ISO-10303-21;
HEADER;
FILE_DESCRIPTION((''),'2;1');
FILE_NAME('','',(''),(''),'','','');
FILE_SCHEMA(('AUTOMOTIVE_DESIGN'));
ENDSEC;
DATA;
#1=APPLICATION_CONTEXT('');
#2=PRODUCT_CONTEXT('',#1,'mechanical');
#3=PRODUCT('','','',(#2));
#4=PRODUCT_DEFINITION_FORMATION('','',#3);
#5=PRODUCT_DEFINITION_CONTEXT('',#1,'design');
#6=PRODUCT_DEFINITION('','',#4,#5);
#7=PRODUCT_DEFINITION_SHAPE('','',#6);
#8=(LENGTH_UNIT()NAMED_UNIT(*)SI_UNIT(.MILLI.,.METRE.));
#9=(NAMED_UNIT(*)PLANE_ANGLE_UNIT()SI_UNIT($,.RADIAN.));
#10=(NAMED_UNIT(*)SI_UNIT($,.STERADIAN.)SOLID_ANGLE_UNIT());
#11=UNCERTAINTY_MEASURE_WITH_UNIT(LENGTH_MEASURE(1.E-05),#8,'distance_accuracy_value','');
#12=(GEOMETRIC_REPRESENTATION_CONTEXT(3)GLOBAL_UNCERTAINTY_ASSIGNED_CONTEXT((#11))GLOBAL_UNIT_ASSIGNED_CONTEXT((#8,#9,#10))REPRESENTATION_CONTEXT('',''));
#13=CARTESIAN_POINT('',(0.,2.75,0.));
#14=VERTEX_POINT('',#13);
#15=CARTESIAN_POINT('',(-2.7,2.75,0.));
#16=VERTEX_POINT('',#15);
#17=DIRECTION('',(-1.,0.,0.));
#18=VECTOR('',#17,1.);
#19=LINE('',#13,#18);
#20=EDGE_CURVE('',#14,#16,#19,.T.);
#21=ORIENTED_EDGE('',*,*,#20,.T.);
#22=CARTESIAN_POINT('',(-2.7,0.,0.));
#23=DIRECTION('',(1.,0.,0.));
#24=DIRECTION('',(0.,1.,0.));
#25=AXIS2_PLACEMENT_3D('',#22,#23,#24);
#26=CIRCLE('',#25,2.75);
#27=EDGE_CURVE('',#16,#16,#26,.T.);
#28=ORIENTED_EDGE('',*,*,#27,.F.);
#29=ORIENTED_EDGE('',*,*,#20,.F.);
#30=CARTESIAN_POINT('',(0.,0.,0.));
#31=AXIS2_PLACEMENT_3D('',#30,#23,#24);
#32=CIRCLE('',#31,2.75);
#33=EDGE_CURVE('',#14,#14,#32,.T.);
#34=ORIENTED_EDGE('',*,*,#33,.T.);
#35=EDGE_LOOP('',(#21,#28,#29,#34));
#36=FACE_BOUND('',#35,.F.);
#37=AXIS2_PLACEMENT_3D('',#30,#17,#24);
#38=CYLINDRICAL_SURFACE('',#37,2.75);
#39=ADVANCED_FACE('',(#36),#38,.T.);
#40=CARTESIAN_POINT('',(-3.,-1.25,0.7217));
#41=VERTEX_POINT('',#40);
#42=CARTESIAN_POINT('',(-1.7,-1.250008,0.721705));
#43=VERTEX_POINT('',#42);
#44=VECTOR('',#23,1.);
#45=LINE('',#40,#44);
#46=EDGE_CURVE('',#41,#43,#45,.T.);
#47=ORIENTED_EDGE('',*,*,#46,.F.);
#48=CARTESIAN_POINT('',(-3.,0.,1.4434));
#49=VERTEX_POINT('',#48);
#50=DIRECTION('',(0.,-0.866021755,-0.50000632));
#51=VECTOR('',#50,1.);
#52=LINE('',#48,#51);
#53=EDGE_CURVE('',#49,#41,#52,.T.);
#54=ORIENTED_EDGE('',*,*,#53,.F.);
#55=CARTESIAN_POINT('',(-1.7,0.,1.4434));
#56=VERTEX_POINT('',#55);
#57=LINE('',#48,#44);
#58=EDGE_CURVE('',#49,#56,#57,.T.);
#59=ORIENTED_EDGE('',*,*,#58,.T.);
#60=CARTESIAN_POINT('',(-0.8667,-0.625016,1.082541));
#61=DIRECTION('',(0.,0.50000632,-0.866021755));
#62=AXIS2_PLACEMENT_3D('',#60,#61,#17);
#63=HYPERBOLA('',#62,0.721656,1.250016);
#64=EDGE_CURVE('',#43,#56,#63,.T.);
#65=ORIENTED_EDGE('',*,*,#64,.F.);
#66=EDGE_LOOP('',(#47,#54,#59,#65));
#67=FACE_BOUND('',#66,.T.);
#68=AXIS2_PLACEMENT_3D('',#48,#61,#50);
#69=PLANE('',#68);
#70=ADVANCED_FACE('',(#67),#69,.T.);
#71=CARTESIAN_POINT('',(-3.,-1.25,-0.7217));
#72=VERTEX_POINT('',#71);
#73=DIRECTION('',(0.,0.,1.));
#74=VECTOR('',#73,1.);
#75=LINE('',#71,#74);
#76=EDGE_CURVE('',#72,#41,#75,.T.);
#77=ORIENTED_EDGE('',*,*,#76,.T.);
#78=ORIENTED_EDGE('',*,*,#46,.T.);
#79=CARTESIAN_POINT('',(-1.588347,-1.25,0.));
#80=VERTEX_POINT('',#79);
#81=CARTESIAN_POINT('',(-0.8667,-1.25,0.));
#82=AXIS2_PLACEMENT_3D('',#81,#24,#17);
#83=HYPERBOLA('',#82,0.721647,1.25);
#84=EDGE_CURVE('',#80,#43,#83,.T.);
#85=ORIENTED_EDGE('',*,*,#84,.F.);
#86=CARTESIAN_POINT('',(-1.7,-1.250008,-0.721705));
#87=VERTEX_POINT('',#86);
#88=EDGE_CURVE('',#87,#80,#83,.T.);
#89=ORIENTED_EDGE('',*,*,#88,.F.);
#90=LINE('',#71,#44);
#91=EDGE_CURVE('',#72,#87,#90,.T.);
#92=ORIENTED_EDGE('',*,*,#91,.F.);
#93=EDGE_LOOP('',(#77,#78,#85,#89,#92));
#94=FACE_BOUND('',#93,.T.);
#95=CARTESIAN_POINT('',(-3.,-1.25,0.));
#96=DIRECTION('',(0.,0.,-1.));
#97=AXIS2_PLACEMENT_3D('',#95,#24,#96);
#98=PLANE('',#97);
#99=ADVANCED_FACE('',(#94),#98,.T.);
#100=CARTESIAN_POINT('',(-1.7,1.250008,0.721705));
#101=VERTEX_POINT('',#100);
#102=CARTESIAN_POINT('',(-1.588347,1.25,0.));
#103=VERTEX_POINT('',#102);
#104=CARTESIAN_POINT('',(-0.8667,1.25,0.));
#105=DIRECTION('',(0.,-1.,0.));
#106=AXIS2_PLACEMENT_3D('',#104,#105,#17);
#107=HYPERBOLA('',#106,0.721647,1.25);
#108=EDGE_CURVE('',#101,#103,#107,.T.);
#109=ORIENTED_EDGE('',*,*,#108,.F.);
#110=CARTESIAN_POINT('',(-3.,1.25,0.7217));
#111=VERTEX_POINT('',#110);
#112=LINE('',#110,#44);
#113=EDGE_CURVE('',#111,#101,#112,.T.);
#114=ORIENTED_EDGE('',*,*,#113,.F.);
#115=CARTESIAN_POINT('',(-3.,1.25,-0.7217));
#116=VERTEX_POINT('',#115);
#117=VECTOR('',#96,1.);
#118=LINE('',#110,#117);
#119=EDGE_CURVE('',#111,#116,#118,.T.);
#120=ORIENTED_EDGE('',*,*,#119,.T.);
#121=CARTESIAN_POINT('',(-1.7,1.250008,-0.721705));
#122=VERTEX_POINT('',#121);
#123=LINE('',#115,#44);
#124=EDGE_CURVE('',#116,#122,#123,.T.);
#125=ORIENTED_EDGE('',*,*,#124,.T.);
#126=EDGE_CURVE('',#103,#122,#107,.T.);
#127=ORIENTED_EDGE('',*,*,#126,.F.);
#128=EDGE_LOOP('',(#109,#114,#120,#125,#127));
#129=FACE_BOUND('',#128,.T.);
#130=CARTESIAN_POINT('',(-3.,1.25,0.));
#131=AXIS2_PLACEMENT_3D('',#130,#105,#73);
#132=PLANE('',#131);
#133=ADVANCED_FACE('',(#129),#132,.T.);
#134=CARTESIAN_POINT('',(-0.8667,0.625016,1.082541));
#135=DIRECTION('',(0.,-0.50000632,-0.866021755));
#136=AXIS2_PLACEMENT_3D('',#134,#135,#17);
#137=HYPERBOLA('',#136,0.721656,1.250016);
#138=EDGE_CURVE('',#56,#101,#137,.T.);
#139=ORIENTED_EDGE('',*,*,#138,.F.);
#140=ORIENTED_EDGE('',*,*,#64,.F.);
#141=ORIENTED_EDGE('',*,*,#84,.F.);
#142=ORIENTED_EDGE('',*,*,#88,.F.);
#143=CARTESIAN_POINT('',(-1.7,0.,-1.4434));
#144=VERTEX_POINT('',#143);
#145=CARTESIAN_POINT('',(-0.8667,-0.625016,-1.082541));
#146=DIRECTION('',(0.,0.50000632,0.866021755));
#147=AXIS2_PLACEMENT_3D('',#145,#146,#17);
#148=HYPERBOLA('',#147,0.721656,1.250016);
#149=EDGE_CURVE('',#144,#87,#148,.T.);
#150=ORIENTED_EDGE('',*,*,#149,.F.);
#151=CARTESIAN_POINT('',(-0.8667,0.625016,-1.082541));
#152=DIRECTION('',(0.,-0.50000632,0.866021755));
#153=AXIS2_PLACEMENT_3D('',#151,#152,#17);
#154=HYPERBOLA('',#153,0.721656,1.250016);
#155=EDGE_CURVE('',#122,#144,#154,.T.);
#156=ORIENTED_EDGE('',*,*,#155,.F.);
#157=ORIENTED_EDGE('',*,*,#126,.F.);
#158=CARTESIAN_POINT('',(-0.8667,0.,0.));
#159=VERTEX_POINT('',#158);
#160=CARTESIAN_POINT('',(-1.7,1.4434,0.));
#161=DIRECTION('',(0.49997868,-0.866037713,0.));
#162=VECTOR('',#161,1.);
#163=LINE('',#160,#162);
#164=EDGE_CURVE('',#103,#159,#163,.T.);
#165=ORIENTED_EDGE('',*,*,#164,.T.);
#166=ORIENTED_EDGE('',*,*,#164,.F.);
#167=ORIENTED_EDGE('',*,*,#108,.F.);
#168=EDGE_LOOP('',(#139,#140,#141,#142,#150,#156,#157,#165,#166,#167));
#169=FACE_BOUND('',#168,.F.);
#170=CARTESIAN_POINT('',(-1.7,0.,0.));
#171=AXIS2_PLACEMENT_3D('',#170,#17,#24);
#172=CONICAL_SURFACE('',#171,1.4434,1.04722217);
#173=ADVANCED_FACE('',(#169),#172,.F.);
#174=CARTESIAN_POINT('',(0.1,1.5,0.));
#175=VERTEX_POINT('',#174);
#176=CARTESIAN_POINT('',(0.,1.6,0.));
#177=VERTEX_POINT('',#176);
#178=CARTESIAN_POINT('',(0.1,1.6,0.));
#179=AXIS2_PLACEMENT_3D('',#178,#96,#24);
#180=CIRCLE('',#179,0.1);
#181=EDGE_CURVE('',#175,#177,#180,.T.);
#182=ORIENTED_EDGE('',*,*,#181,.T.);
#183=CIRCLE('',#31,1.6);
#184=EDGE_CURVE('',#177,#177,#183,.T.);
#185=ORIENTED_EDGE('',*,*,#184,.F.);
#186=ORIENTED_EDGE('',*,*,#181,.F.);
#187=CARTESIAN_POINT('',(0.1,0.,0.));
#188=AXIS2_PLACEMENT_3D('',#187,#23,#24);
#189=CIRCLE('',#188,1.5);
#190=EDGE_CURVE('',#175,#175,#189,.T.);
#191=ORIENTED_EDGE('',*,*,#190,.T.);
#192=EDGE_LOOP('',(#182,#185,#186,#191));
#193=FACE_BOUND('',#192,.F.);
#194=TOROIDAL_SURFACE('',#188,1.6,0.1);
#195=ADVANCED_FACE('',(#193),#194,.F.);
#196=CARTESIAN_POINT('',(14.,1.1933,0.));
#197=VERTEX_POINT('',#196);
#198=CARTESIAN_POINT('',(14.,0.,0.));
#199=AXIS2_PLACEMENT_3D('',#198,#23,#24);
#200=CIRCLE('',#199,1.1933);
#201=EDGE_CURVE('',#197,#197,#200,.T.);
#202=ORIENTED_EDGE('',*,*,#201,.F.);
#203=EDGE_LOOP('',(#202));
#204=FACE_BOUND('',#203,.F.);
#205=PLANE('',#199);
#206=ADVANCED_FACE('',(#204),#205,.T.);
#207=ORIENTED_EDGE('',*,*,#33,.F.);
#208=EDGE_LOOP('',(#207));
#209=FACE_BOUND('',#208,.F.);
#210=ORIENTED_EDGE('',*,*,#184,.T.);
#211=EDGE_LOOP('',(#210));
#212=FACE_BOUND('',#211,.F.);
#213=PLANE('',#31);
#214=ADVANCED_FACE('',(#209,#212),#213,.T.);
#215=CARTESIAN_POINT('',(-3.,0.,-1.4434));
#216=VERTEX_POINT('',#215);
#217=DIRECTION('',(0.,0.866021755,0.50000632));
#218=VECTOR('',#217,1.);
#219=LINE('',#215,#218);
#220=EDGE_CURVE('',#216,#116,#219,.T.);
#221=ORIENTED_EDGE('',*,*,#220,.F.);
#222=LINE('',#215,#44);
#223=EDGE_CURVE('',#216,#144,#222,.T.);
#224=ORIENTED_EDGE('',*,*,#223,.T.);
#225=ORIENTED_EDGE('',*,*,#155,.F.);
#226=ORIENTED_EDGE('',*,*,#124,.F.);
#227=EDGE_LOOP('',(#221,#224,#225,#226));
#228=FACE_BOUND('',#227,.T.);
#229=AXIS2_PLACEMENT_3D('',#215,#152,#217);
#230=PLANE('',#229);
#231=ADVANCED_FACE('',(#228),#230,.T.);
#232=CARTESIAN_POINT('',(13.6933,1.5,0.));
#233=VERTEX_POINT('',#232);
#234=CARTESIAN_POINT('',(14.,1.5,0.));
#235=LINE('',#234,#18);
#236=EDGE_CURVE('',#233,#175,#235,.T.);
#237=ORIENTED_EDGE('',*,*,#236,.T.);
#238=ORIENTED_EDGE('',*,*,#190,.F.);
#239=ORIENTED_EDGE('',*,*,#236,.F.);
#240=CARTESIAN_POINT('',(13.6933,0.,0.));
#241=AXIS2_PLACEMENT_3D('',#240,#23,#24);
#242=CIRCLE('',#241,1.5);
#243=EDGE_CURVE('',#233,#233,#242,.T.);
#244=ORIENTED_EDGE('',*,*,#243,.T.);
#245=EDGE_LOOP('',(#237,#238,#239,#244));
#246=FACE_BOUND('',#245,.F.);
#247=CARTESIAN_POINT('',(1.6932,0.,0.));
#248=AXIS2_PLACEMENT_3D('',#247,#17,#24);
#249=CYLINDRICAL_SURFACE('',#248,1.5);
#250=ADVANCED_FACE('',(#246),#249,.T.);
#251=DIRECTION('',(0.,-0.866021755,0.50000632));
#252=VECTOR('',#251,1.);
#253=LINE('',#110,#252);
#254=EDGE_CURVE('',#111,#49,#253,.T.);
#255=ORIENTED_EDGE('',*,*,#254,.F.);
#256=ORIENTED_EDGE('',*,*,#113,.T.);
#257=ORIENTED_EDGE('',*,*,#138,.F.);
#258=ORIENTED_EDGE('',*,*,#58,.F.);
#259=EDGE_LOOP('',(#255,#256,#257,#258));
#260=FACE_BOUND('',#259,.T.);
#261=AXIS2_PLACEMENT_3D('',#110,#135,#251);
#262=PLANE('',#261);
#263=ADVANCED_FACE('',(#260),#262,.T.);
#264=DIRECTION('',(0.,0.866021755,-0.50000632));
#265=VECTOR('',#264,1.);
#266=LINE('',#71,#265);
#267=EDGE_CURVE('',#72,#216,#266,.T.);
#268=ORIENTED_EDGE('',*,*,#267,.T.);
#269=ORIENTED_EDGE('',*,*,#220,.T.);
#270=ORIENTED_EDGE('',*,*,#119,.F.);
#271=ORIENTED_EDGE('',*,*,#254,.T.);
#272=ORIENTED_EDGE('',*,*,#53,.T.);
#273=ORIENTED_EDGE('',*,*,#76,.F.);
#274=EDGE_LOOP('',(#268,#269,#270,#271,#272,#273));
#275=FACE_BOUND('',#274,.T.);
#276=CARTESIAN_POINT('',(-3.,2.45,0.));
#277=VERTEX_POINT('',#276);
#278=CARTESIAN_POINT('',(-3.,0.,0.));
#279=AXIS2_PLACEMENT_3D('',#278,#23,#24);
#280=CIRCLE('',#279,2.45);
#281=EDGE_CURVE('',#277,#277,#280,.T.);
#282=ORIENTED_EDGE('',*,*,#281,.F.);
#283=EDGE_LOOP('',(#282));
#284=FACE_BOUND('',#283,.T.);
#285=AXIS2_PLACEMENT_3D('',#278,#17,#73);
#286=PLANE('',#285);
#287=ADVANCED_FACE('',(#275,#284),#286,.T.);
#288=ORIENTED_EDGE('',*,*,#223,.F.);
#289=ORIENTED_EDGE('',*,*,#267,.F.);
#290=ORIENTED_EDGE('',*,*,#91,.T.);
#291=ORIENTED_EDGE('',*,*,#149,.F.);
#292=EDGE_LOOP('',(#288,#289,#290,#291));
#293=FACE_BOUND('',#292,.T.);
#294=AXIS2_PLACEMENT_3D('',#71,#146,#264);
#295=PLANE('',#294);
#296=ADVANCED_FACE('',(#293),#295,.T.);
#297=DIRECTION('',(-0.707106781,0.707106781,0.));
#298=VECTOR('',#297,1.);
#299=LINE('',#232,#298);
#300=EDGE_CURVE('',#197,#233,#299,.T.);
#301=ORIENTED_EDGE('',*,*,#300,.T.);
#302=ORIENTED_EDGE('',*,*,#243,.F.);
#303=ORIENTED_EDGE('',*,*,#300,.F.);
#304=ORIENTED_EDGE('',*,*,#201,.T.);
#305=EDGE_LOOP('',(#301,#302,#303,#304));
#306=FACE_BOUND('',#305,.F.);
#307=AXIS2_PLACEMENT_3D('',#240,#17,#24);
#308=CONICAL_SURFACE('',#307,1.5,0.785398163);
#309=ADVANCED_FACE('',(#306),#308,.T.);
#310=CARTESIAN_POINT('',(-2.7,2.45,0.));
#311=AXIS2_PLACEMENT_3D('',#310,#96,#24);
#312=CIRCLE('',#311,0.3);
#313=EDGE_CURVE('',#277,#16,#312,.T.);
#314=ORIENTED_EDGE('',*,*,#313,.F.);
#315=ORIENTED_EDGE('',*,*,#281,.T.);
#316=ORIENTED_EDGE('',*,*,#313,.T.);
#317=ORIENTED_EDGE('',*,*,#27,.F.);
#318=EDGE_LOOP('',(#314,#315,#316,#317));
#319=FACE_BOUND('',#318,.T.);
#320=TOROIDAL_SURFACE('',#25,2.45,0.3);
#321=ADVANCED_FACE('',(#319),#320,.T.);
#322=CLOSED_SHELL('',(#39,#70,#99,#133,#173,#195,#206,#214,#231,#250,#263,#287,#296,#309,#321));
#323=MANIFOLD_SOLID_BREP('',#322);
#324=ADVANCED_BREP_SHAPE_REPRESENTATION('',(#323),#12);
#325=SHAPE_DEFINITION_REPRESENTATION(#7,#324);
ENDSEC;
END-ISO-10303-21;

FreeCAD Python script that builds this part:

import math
import FreeCAD as App
import Part
import Sketcher
Q = App.Units.Quantity


def edges_at(feature, points):
    """Names of the edges that pass closest to the given points."""
    edges = feature.Shape.Edges
    near = lambda p: min(range(len(edges)), key=lambda i: edges[i].distToShape(Part.Vertex(*p))[0])
    return sorted({f"Edge{near(p) + 1}" for p in points})


def add_polygon(sketch, points):
    """Adds a closed chain of lines whose ends are joined by coincident constraints."""
    first, n = sketch.GeometryCount, len(points)
    for a, b in zip(points, points[1:] + points[:1]):
        sketch.addGeometry(Part.LineSegment(App.Vector(*a, 0), App.Vector(*b, 0)), False)
    for i in range(n):
        sketch.addConstraint(Sketcher.Constraint("Coincident", first + i, 2, first + (i + 1) % n, 1))

doc = App.newDocument("Part")
body = doc.addObject("PartDesign::Body", "Body")

# Sketch on XY plane
sketch1 = doc.addObject("Sketcher::SketchObject", "Sketch")
body.addObject(sketch1)
sketch1.AttachmentSupport = (doc.XY_Plane, [""])
sketch1.MapMode = "FlatFace"
add_polygon(sketch1, [(-1.7, 1.4), (-0.9, 0), (14, 0), (14, 1.5), (0, 1.5), (0, 2.8), (-3, 2.8), (-3, 1.4)])  # lines 0-7
sketch1.addConstraint(Sketcher.Constraint("Horizontal", 1))
sketch1.addConstraint(Sketcher.Constraint("Vertical", 2))
sketch1.addConstraint(Sketcher.Constraint("Horizontal", 3))
sketch1.addConstraint(Sketcher.Constraint("Vertical", 4))
sketch1.addConstraint(Sketcher.Constraint("Horizontal", 5))
sketch1.addConstraint(Sketcher.Constraint("Vertical", 6))
sketch1.addConstraint(Sketcher.Constraint("Horizontal", 7))
sketch1.addConstraint(Sketcher.Constraint("PointOnObject", 0, 2, -1))
sketch1.addConstraint(Sketcher.Constraint("PointOnObject", 3, 2, -2))
sketch1.addConstraint(Sketcher.Constraint("DistanceX", 3, 2, 3, 1, Q("14 mm")))
sketch1.addConstraint(Sketcher.Constraint("DistanceX", 5, 2, 5, 1, Q("3 mm")))
sketch1.addConstraint(Sketcher.Constraint("DistanceX", 7, 1, 7, 2, Q("1.3 mm")))
sketch1.addConstraint(Sketcher.Constraint("DistanceY", 2, 1, 2, 2, Q("1.5 mm")))
sketch1.addConstraint(Sketcher.Constraint("DistanceY", 4, 1, 4, 2, Q("1.25 mm")))
sketch1.addConstraint(Sketcher.Constraint("DistanceX", 1, 1, 1, 2, Q("14.8667 mm")))
sketch1.addConstraint(Sketcher.Constraint("DistanceY", 6, 2, 6, 1, Q("1.3066 mm")))
revolution = doc.addObject("PartDesign::Revolution", "Revolution")
body.addObject(revolution)
revolution.Profile = sketch1
revolution.ReferenceAxis = (sketch1, ["H_Axis"])
revolution.Angle = 360

# Sketch on YZ plane
sketch2 = doc.addObject("Sketcher::SketchObject", "Sketch001")
body.addObject(sketch2)
sketch2.AttachmentSupport = (doc.YZ_Plane, [""])
sketch2.MapMode = "FlatFace"
sketch2.AttachmentOffset = App.Placement(App.Vector(0, 0, -3), App.Rotation())
sketch2.addGeometry(Part.LineSegment(App.Vector(1.2, 0.7, 0), App.Vector(0, 1.4, 0)), False)
sketch2.addGeometry(Part.ArcOfCircle(Part.Circle(App.Vector(0, 0, 0), App.Vector(0, 0, 1), 1.4), math.radians(30), math.radians(90)), False)
sketch2.addGeometry(Part.ArcOfCircle(Part.Circle(App.Vector(0, 0, 0), App.Vector(0, 0, 1), 1.4), math.radians(90), math.radians(150)), False)
sketch2.addGeometry(Part.LineSegment(App.Vector(0, 1.4, 0), App.Vector(-1.2, 0.7, 0)), False)
sketch2.addGeometry(Part.ArcOfCircle(Part.Circle(App.Vector(0, 0, 0), App.Vector(0, 0, 1), 1.4), math.radians(-30), math.radians(30)), False)
sketch2.addGeometry(Part.LineSegment(App.Vector(1.2, 0.7, 0), App.Vector(1.2, -0.7, 0)), False)
sketch2.addGeometry(Part.LineSegment(App.Vector(-1.2, 0.7, 0), App.Vector(-1.2, -0.7, 0)), False)
sketch2.addGeometry(Part.ArcOfCircle(Part.Circle(App.Vector(0, 0, 0), App.Vector(0, 0, 1), 1.4), math.radians(150), math.radians(210)), False)
sketch2.addGeometry(Part.LineSegment(App.Vector(-1.2, -0.7, 0), App.Vector(0, -1.4, 0)), False)
sketch2.addGeometry(Part.ArcOfCircle(Part.Circle(App.Vector(0, 0, 0), App.Vector(0, 0, 1), 1.4), math.radians(-150), math.radians(-90)), False)
sketch2.addGeometry(Part.ArcOfCircle(Part.Circle(App.Vector(0, 0, 0), App.Vector(0, 0, 1), 1.4), math.radians(-90), math.radians(-30)), False)
sketch2.addGeometry(Part.LineSegment(App.Vector(0, -1.4, 0), App.Vector(1.2, -0.7, 0)), False)
sketch2.addConstraint(Sketcher.Constraint("Coincident", 0, 1, 1, 1))
sketch2.addConstraint(Sketcher.Constraint("Coincident", 1, 2, 0, 2))
sketch2.addConstraint(Sketcher.Constraint("Coincident", 2, 1, 3, 1))
sketch2.addConstraint(Sketcher.Constraint("Coincident", 3, 2, 2, 2))
sketch2.addConstraint(Sketcher.Constraint("Coincident", 4, 1, 5, 2))
sketch2.addConstraint(Sketcher.Constraint("Coincident", 5, 1, 4, 2))
sketch2.addConstraint(Sketcher.Constraint("Coincident", 6, 1, 7, 1))
sketch2.addConstraint(Sketcher.Constraint("Coincident", 7, 2, 6, 2))
sketch2.addConstraint(Sketcher.Constraint("Coincident", 8, 1, 9, 1))
sketch2.addConstraint(Sketcher.Constraint("Coincident", 9, 2, 8, 2))
sketch2.addConstraint(Sketcher.Constraint("Coincident", 10, 1, 11, 1))
sketch2.addConstraint(Sketcher.Constraint("Coincident", 11, 2, 10, 2))
sketch2.addConstraint(Sketcher.Constraint("Vertical", 5))
sketch2.addConstraint(Sketcher.Constraint("Vertical", 6))
sketch2.addConstraint(Sketcher.Constraint("Coincident", 1, 3, -1, 1))
sketch2.addConstraint(Sketcher.Constraint("Coincident", 2, 3, -1, 1))
sketch2.addConstraint(Sketcher.Constraint("Coincident", 4, 3, -1, 1))
sketch2.addConstraint(Sketcher.Constraint("Coincident", 7, 3, -1, 1))
sketch2.addConstraint(Sketcher.Constraint("Coincident", 9, 3, -1, 1))
sketch2.addConstraint(Sketcher.Constraint("Coincident", 10, 3, -1, 1))
sketch2.addConstraint(Sketcher.Constraint("Coincident", 2, 1, 1, 2))
sketch2.addConstraint(Sketcher.Constraint("Coincident", 5, 1, 0, 1))
sketch2.addConstraint(Sketcher.Constraint("Coincident", 6, 1, 3, 2))
sketch2.addConstraint(Sketcher.Constraint("Coincident", 8, 1, 7, 2))
sketch2.addConstraint(Sketcher.Constraint("Coincident", 10, 1, 9, 2))
sketch2.addConstraint(Sketcher.Constraint("PointOnObject", 1, 2, -2))
sketch2.addConstraint(Sketcher.Constraint("PointOnObject", 9, 2, -2))
sketch2.addConstraint(Sketcher.Constraint("Parallel", 0, 8))
sketch2.addConstraint(Sketcher.Constraint("Parallel", 3, 11))
sketch2.addConstraint(Sketcher.Constraint("Angle", 0, Q("149.9996 deg")))
sketch2.addConstraint(Sketcher.Constraint("Radius", 1, Q("1.4434 mm")))
pad1 = doc.addObject("PartDesign::Pad", "Pad")
body.addObject(pad1)
pad1.Profile = sketch2
pad1.Type = "UpToFirst"
doc.recompute()

fillet = doc.addObject("PartDesign::Fillet", "Fillet")
body.addObject(fillet)
fillet.Base = (pad1, edges_at(pad1, [(-3, -2.75, 0)]))
fillet.Radius = 0.3
doc.recompute()

chamfer = doc.addObject("PartDesign::Chamfer", "Chamfer")
body.addObject(chamfer)
chamfer.Base = (fillet, edges_at(fillet, [(14, -1.5, 0)]))
chamfer.ChamferType = "Two distances"
chamfer.Size = 0.3067
chamfer.Size2 = 0.3067
doc.recompute()

fillet2 = doc.addObject("PartDesign::Fillet", "Fillet001")
body.addObject(fillet2)
fillet2.Base = (chamfer, edges_at(chamfer, [(0, -1.5, 0)]))
fillet2.Radius = 0.1

doc.recompute()
